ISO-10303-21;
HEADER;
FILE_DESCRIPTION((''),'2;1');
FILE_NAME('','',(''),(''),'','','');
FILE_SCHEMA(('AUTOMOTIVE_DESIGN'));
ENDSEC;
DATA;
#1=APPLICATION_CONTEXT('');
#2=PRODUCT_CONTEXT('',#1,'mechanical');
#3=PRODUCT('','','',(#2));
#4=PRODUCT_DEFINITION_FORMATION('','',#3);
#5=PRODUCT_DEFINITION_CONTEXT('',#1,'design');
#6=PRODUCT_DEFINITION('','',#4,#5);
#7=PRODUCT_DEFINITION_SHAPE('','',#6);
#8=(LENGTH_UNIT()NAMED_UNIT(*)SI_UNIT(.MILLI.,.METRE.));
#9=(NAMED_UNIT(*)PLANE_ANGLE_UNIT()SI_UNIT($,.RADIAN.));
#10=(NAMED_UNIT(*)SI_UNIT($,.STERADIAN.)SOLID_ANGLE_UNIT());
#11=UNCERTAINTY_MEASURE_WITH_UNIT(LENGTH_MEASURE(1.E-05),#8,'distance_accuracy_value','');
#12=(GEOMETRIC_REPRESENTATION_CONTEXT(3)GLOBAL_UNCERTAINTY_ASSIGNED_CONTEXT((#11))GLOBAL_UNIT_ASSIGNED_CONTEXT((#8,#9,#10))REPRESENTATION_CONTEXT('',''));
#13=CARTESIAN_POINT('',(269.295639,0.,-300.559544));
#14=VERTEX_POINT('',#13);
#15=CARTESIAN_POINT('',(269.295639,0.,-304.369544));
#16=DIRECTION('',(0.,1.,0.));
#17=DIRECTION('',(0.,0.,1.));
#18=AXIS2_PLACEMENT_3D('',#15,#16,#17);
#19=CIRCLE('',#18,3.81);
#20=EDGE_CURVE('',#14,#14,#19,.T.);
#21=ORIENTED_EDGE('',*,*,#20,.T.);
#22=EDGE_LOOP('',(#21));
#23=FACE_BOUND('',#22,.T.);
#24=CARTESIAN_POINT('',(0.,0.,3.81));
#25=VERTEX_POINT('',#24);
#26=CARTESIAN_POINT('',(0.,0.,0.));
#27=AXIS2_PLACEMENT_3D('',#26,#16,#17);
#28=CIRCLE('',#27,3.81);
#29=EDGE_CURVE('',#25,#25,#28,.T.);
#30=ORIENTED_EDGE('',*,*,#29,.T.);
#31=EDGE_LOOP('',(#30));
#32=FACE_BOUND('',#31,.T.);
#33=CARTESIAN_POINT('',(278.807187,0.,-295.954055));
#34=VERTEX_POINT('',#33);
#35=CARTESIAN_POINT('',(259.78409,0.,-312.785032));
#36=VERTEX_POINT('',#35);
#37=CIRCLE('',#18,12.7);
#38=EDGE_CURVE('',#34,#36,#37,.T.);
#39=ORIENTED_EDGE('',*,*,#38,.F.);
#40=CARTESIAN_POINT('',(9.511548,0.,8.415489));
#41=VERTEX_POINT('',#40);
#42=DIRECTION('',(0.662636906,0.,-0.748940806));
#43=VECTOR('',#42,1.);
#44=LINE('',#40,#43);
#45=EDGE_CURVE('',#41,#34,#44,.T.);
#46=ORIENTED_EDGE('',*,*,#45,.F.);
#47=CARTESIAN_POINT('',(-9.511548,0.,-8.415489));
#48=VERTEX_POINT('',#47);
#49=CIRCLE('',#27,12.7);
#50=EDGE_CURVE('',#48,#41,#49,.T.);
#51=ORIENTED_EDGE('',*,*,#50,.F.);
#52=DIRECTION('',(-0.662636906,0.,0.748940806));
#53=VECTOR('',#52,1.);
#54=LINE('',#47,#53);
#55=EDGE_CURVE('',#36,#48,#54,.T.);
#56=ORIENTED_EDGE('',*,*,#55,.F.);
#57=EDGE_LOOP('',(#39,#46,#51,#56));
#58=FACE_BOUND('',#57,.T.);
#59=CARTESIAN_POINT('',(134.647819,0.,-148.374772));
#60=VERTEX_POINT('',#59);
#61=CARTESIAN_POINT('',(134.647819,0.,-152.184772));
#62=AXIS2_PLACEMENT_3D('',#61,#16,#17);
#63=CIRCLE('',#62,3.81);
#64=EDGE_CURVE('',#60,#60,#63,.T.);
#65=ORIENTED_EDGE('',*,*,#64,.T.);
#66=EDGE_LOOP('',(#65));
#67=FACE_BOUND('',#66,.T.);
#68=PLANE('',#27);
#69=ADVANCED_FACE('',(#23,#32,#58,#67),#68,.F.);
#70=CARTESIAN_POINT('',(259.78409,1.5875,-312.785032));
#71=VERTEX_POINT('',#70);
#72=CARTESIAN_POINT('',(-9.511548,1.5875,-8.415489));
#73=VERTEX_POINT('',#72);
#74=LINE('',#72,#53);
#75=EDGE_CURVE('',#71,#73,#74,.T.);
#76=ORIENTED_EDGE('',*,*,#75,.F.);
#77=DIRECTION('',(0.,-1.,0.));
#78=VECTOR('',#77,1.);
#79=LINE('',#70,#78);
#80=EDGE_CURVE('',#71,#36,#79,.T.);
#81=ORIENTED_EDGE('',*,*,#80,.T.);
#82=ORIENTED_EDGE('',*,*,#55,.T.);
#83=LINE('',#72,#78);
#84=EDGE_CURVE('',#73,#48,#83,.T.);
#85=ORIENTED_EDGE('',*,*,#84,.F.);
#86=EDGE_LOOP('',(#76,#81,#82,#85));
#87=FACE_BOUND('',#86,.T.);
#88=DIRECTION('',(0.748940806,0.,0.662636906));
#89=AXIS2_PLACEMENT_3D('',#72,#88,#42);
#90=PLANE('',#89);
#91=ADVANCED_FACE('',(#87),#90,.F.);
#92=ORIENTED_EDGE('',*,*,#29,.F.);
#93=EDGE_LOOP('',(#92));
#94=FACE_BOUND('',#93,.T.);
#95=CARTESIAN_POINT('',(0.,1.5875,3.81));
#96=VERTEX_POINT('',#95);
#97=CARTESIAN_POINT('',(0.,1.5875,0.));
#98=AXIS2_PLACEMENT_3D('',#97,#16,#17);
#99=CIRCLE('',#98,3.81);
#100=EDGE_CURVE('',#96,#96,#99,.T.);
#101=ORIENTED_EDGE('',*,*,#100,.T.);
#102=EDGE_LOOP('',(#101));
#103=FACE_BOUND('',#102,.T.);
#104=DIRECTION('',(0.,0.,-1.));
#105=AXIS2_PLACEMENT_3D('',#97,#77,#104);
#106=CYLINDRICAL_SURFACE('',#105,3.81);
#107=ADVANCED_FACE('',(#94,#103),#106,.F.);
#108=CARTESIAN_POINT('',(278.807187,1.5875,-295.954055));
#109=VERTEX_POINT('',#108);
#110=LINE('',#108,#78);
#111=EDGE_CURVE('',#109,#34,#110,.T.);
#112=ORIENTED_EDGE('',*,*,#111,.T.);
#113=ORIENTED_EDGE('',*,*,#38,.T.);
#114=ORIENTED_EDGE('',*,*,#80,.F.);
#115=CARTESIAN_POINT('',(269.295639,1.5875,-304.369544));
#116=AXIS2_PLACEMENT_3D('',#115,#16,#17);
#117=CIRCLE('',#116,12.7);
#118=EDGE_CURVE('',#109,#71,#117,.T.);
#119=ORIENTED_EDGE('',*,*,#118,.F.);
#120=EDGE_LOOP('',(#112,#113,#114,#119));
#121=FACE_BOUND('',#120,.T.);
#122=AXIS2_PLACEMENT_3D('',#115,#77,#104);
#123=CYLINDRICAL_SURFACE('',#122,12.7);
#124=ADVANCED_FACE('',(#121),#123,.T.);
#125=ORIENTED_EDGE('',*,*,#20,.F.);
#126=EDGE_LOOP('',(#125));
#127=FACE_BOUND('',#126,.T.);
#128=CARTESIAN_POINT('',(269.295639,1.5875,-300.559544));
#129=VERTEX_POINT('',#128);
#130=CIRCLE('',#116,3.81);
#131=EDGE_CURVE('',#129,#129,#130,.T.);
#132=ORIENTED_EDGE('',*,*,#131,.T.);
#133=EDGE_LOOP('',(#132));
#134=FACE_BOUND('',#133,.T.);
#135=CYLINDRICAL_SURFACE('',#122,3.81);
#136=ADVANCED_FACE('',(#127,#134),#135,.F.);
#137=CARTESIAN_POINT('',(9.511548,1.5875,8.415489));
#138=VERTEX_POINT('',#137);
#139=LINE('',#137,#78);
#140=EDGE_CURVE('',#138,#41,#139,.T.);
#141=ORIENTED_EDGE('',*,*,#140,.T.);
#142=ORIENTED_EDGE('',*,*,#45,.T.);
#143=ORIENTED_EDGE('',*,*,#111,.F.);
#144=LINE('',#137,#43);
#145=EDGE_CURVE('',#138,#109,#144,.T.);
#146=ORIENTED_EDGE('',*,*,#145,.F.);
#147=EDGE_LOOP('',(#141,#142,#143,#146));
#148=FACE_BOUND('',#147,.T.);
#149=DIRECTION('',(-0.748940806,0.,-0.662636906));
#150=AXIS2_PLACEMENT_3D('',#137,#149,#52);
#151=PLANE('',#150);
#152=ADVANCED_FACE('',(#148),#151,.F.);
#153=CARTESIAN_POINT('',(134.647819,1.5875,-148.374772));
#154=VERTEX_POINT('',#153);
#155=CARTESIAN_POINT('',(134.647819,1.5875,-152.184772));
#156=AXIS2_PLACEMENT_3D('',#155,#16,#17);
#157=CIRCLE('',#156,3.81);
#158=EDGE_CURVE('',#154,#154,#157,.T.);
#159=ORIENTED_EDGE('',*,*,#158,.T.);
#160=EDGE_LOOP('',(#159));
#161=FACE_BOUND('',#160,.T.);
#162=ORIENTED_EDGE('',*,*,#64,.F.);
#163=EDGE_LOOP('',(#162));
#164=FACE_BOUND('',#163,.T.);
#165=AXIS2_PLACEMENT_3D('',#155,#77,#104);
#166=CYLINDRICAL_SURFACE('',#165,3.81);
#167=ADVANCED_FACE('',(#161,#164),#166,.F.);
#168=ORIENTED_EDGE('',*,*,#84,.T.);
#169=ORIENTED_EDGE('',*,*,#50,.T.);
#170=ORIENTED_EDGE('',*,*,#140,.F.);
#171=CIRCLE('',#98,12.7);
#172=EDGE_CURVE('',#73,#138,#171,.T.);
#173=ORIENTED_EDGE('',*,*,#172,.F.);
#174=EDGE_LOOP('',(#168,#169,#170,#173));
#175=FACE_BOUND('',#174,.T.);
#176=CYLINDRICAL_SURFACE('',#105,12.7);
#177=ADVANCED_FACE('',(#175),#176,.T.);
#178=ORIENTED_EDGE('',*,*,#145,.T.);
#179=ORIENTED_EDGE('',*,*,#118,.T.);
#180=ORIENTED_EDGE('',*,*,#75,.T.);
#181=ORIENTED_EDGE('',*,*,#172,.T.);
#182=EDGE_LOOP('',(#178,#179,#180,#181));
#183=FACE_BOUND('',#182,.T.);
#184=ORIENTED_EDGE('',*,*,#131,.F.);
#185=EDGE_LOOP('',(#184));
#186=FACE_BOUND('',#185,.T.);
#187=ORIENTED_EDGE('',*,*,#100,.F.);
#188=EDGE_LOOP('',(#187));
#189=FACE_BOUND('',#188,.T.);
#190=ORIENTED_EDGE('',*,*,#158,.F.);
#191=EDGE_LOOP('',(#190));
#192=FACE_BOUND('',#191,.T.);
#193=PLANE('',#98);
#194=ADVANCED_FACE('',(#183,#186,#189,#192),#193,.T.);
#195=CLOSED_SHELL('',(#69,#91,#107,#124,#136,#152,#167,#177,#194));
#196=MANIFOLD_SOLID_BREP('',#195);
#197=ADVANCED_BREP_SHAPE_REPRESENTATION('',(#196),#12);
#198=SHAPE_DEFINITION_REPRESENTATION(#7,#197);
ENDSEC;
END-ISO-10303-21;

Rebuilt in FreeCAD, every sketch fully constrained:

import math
import FreeCAD as App
import Part
import Sketcher
from FreeCAD import Vector
Q = App.Units.Quantity

doc = App.newDocument("Part")
params = doc.addObject("Spreadsheet::Sheet", "Params")
for row, (alias, value) in enumerate([
    ("sketch1_diameter", "0.3 in"),
    ("sketch1_radius", "0.5 in"),
    ("sketch1_length", "16 in"),
    ("pad1_length", "0.0625 in"),
], start=1):
    params.set(f"A{row}", alias)
    params.set(f"B{row}", "=" + value)
    params.setAlias(f"B{row}", alias)

body = doc.addObject("PartDesign::Body", "Body")

# Sketch on XZ plane
sketch1 = doc.addObject("Sketcher::SketchObject", "Sketch")
body.addObject(sketch1)
sketch1.AttachmentSupport = (doc.XZ_Plane, [""])
sketch1.MapMode = "FlatFace"
sketch1.addGeometry([
    Part.LineSegment(Vector(259.8, -312.8, 0), Vector(-9.5, -8.4, 0)),  # 0
    Part.ArcOfCircle(Part.Circle(Vector(0, 0, 0), Vector(0, 0, 1), 12.7), math.radians(42), math.radians(222)),  # 1
    Part.LineSegment(Vector(9.5, 8.4, 0), Vector(278.8, -296, 0)),  # 2
    Part.ArcOfCircle(Part.Circle(Vector(269.3, -304.4, 0), Vector(0, 0, 1), 12.7), math.radians(-138), math.radians(42)),  # 3
    Part.Circle(Vector(0, 0, 0), Vector(0, 0, 1), 3.8),  # 4
    Part.Circle(Vector(269.3, -304.4, 0), Vector(0, 0, 1), 3.8),  # 5
    Part.Circle(Vector(134.6, -152.2, 0), Vector(0, 0, 1), 3.8),  # 6
], False)
sketch1.addConstraint([
    Sketcher.Constraint("Tangent", 0, 2, 1, 2),
    Sketcher.Constraint("Tangent", 1, 1, 2, 1),
    Sketcher.Constraint("Tangent", 2, 2, 3, 2),
    Sketcher.Constraint("Tangent", 3, 1, 0, 1),
    Sketcher.Constraint("Coincident", 1, 3, -1, 1),
    Sketcher.Constraint("Coincident", 4, 3, -1, 1),
    Sketcher.Constraint("Coincident", 5, 3, 3, 3),
    Sketcher.Constraint("Equal", 1, 3),
    Sketcher.Constraint("Equal", 4, 5),
    Sketcher.Constraint("Equal", 5, 6),
    Sketcher.Constraint("Diameter", 4, Q("0.3 in")),
    Sketcher.Constraint("Radius", 1, Q("0.5 in")),
    Sketcher.Constraint("Distance", 0, Q("16 in")),
    Sketcher.Constraint("DistanceX", -1, 1, 3, 3, Q("269.295639 mm")),
    Sketcher.Constraint("DistanceX", -1, 1, 6, 3, Q("134.647819 mm")),
    Sketcher.Constraint("DistanceY", 6, 3, -1, 1, Q("152.184772 mm")),
])
sketch1.setExpression("Constraints[10]", "Params.sketch1_diameter")
sketch1.setExpression("Constraints[11]", "Params.sketch1_radius")
sketch1.setExpression("Constraints[12]", "Params.sketch1_length")
pad1 = doc.addObject("PartDesign::Pad", "Pad")
body.addObject(pad1)
pad1.Profile = sketch1
pad1.setExpression("Length", "Params.pad1_length")
pad1.Reversed = True

doc.recompute()
